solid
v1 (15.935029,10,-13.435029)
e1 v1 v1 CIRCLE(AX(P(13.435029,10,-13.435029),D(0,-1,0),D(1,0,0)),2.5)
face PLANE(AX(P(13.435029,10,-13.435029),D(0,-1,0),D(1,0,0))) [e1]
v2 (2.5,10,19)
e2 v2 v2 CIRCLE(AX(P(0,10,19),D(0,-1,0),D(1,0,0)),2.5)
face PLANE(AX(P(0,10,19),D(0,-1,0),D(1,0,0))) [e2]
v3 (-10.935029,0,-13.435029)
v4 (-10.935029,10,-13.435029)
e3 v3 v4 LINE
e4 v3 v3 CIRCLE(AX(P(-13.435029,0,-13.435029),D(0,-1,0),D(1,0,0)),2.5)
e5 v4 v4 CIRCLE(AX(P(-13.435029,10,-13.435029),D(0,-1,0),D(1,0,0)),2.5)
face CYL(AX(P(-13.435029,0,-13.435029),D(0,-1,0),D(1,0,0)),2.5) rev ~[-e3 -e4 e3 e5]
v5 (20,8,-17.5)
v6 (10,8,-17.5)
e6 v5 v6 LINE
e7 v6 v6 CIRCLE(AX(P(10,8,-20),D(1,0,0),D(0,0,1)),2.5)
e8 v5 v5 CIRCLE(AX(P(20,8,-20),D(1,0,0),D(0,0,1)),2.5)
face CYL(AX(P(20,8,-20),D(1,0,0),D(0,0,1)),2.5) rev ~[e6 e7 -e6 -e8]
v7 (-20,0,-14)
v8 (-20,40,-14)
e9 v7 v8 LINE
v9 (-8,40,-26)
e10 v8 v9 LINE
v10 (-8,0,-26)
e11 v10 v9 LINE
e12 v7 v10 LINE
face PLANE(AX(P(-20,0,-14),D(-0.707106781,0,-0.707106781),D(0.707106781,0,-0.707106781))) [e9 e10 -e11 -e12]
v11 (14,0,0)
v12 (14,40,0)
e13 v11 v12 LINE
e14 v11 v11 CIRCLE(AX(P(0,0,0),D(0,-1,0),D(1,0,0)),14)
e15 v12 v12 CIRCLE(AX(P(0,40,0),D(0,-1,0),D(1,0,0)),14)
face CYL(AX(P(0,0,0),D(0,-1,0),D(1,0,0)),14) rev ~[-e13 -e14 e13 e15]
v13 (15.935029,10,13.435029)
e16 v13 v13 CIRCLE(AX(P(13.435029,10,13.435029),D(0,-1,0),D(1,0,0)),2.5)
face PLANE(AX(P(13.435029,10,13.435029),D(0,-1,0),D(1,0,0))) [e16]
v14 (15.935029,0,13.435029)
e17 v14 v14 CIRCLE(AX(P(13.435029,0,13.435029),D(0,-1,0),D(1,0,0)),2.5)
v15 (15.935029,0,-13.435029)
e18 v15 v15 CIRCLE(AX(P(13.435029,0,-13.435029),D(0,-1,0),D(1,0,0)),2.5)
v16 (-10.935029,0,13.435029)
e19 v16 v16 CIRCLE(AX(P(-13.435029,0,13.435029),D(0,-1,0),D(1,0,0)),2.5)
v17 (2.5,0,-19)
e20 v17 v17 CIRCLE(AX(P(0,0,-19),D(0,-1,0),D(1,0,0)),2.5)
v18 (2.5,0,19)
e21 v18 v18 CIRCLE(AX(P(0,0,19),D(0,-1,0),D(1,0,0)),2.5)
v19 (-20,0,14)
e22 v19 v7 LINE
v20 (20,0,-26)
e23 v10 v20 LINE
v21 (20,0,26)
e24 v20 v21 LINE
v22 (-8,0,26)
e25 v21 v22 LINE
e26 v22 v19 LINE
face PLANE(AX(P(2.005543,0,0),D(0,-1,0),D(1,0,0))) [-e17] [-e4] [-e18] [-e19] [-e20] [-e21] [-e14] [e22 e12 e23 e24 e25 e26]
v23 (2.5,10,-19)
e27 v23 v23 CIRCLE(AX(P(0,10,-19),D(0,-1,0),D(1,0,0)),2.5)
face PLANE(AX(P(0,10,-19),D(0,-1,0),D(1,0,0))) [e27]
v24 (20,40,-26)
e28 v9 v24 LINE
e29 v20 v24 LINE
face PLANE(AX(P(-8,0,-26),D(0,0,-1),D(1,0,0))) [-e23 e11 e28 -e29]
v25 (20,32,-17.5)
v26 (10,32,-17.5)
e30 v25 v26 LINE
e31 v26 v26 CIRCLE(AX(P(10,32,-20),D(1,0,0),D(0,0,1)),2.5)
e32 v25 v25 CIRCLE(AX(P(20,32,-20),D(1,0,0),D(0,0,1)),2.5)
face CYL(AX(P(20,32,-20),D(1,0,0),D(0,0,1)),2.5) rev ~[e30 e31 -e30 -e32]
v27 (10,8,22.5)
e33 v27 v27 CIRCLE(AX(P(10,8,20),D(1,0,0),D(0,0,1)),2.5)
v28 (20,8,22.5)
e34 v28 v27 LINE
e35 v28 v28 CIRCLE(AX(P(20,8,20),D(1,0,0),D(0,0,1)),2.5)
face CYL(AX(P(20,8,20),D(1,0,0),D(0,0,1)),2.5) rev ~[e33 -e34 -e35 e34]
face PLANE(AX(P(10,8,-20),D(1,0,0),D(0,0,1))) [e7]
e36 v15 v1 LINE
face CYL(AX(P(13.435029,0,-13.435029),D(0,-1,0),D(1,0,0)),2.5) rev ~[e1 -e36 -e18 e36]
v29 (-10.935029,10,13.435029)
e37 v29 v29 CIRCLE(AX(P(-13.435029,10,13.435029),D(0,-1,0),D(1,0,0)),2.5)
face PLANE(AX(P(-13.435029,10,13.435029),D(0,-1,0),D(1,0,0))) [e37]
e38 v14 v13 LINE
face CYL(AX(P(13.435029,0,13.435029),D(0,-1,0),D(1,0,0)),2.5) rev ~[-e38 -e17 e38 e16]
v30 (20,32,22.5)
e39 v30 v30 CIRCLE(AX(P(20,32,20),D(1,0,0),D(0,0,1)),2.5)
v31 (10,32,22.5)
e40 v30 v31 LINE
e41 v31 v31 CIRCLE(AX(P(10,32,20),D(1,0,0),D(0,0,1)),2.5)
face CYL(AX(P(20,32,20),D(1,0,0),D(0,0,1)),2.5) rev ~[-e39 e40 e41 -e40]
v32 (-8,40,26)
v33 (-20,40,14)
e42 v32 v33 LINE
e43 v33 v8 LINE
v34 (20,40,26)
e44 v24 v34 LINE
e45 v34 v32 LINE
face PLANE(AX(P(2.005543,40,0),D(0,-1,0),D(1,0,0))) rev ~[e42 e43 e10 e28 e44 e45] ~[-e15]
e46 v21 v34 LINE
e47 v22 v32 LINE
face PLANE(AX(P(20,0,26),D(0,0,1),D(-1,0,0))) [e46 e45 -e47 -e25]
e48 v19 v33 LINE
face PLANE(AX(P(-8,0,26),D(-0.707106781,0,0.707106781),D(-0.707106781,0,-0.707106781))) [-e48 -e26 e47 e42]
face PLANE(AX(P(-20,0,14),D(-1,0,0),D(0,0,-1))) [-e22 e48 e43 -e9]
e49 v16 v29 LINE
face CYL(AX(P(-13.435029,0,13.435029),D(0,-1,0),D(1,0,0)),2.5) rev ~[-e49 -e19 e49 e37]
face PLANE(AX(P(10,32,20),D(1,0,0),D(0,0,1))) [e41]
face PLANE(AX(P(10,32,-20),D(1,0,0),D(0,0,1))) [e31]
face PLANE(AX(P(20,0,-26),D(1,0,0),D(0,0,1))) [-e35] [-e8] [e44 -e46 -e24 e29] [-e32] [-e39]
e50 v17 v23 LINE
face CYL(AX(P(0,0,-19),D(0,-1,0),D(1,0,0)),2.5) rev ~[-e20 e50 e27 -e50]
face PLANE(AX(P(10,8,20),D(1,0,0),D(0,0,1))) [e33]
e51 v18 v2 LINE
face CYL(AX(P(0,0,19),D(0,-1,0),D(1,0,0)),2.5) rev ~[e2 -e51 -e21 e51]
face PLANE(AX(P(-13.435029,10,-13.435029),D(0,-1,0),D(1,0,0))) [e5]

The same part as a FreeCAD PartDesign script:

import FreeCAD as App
import Part
import Sketcher
Q = App.Units.Quantity


def add_polygon(sketch, points):
    """Adds a closed chain of lines whose ends are joined by coincident constraints."""
    first, n = sketch.GeometryCount, len(points)
    for a, b in zip(points, points[1:] + points[:1]):
        sketch.addGeometry(Part.LineSegment(App.Vector(*a, 0), App.Vector(*b, 0)), False)
    for i in range(n):
        sketch.addConstraint(Sketcher.Constraint("Coincident", first + i, 2, first + (i + 1) % n, 1))

doc = App.newDocument("Part")
body = doc.addObject("PartDesign::Body", "Body")

# Sketch on XZ plane
sketch1 = body.newObject("Sketcher::SketchObject", "Sketch")
sketch1.AttachmentSupport = (doc.getObject("XZ_Plane"), [""])
sketch1.MapMode = "FlatFace"
add_polygon(sketch1, [(20, -26), (20, 26), (-8, 26), (-20, 14), (-20, -14), (-8, -26)])  # lines 0-5
sketch1.addGeometry(Part.Circle(App.Vector(0, 0, 0), App.Vector(0, 0, 1), 14), False)  # 6
sketch1.addConstraint([
    Sketcher.Constraint("Vertical", 0),
    Sketcher.Constraint("Horizontal", 1),
    Sketcher.Constraint("Vertical", 3),
    Sketcher.Constraint("Horizontal", 5),
    Sketcher.Constraint("Coincident", 6, 3, -1, 1),
    Sketcher.Constraint("Symmetric", 1, 2, 4, 2, -1),
    Sketcher.Constraint("Perpendicular", 2, 4),
    Sketcher.Constraint("Equal", 5, 3),
    Sketcher.Constraint("Equal", 2, 4),
    Sketcher.Constraint("Diameter", 6, Q("28 mm")),
    Sketcher.Constraint("DistanceX", 1, 2, 1, 1, Q("28 mm")),
    Sketcher.Constraint("DistanceY", 0, 1, 0, 2, Q("52 mm")),
    Sketcher.Constraint("DistanceX", -1, 1, 0, 2, Q("20 mm")),
])
pad1 = body.newObject("PartDesign::Pad", "Pad")
pad1.Profile = sketch1
pad1.Length = 40
pad1.Reversed = True

# Sketch on XZ plane
sketch2 = body.newObject("Sketcher::SketchObject", "Sketch001")
sketch2.AttachmentSupport = (doc.getObject("XZ_Plane"), [""])
sketch2.MapMode = "FlatFace"
sketch2.addGeometry([
    Part.Circle(App.Vector(-13.435029, 13.435029, 0), App.Vector(0, 0, 1), 2.5),  # 0
    Part.Circle(App.Vector(0, 19, 0), App.Vector(0, 0, 1), 2.5),  # 1
    Part.Circle(App.Vector(0, -19, 0), App.Vector(0, 0, 1), 2.5),  # 2
    Part.Circle(App.Vector(13.435029, -13.435029, 0), App.Vector(0, 0, 1), 2.5),  # 3
    Part.Circle(App.Vector(-13.435029, -13.435029, 0), App.Vector(0, 0, 1), 2.5),  # 4
    Part.Circle(App.Vector(13.435029, 13.435029, 0), App.Vector(0, 0, 1), 2.5),  # 5
], False)
sketch2.addConstraint([
    Sketcher.Constraint("Equal", 0, 1),
    Sketcher.Constraint("Equal", 1, 2),
    Sketcher.Constraint("Equal", 2, 3),
    Sketcher.Constraint("Equal", 3, 4),
    Sketcher.Constraint("Equal", 4, 5),
    Sketcher.Constraint("Symmetric", 1, 3, 2, 3, -1, 1),
    Sketcher.Constraint("Symmetric", 0, 3, 3, 3, -1, 1),
    Sketcher.Constraint("Symmetric", 4, 3, 5, 3, -1, 1),
    Sketcher.Constraint("Symmetric", 3, 3, 4, 3, -2),
    Sketcher.Constraint("PointOnObject", 1, 3, -2),
    Sketcher.Constraint("Diameter", 0, Q("5 mm")),
    Sketcher.Constraint("DistanceY", -1, 1, 1, 3, Q("19 mm")),
    Sketcher.Constraint("DistanceX", 0, 3, -1, 1, Q("13.435029 mm")),
    Sketcher.Constraint("DistanceY", -1, 1, 0, 3, Q("13.435029 mm")),
])
pocket1 = body.newObject("PartDesign::Pocket", "Pocket")
pocket1.Profile = sketch2
pocket1.Length = 10

# Sketch on YZ plane
sketch3 = body.newObject("Sketcher::SketchObject", "Sketch002")
sketch3.AttachmentSupport = (doc.getObject("YZ_Plane"), [""])
sketch3.MapMode = "FlatFace"
sketch3.AttachmentOffset = App.Placement(App.Vector(0, 0, 20), App.Rotation())
sketch3.addGeometry([
    Part.Circle(App.Vector(8, 20, 0), App.Vector(0, 0, 1), 2.5),
    Part.Circle(App.Vector(32, 20, 0), App.Vector(0, 0, 1), 2.5),
    Part.Circle(App.Vector(8, -20, 0), App.Vector(0, 0, 1), 2.5),
    Part.Circle(App.Vector(32, -20, 0), App.Vector(0, 0, 1), 2.5),
], False)
sketch3.addConstraint([
    Sketcher.Constraint("Equal", 0, 1),
    Sketcher.Constraint("Equal", 1, 2),
    Sketcher.Constraint("Equal", 2, 3),
    Sketcher.Constraint("Symmetric", 0, 3, 2, 3, -1),
    Sketcher.Constraint("Symmetric", 1, 3, 3, 3, -1),
    Sketcher.Constraint("Horizontal", 0, 3, 1, 3),
    Sketcher.Constraint("Diameter", 0, Q("5 mm")),
    Sketcher.Constraint("DistanceX", -1, 1, 0, 3, Q("8 mm")),
    Sketcher.Constraint("DistanceY", -1, 1, 0, 3, Q("20 mm")),
    Sketcher.Constraint("DistanceX", -1, 1, 1, 3, Q("32 mm")),
])
pocket2 = body.newObject("PartDesign::Pocket", "Pocket001")
pocket2.Profile = sketch3
pocket2.Length = 10

doc.recompute()
